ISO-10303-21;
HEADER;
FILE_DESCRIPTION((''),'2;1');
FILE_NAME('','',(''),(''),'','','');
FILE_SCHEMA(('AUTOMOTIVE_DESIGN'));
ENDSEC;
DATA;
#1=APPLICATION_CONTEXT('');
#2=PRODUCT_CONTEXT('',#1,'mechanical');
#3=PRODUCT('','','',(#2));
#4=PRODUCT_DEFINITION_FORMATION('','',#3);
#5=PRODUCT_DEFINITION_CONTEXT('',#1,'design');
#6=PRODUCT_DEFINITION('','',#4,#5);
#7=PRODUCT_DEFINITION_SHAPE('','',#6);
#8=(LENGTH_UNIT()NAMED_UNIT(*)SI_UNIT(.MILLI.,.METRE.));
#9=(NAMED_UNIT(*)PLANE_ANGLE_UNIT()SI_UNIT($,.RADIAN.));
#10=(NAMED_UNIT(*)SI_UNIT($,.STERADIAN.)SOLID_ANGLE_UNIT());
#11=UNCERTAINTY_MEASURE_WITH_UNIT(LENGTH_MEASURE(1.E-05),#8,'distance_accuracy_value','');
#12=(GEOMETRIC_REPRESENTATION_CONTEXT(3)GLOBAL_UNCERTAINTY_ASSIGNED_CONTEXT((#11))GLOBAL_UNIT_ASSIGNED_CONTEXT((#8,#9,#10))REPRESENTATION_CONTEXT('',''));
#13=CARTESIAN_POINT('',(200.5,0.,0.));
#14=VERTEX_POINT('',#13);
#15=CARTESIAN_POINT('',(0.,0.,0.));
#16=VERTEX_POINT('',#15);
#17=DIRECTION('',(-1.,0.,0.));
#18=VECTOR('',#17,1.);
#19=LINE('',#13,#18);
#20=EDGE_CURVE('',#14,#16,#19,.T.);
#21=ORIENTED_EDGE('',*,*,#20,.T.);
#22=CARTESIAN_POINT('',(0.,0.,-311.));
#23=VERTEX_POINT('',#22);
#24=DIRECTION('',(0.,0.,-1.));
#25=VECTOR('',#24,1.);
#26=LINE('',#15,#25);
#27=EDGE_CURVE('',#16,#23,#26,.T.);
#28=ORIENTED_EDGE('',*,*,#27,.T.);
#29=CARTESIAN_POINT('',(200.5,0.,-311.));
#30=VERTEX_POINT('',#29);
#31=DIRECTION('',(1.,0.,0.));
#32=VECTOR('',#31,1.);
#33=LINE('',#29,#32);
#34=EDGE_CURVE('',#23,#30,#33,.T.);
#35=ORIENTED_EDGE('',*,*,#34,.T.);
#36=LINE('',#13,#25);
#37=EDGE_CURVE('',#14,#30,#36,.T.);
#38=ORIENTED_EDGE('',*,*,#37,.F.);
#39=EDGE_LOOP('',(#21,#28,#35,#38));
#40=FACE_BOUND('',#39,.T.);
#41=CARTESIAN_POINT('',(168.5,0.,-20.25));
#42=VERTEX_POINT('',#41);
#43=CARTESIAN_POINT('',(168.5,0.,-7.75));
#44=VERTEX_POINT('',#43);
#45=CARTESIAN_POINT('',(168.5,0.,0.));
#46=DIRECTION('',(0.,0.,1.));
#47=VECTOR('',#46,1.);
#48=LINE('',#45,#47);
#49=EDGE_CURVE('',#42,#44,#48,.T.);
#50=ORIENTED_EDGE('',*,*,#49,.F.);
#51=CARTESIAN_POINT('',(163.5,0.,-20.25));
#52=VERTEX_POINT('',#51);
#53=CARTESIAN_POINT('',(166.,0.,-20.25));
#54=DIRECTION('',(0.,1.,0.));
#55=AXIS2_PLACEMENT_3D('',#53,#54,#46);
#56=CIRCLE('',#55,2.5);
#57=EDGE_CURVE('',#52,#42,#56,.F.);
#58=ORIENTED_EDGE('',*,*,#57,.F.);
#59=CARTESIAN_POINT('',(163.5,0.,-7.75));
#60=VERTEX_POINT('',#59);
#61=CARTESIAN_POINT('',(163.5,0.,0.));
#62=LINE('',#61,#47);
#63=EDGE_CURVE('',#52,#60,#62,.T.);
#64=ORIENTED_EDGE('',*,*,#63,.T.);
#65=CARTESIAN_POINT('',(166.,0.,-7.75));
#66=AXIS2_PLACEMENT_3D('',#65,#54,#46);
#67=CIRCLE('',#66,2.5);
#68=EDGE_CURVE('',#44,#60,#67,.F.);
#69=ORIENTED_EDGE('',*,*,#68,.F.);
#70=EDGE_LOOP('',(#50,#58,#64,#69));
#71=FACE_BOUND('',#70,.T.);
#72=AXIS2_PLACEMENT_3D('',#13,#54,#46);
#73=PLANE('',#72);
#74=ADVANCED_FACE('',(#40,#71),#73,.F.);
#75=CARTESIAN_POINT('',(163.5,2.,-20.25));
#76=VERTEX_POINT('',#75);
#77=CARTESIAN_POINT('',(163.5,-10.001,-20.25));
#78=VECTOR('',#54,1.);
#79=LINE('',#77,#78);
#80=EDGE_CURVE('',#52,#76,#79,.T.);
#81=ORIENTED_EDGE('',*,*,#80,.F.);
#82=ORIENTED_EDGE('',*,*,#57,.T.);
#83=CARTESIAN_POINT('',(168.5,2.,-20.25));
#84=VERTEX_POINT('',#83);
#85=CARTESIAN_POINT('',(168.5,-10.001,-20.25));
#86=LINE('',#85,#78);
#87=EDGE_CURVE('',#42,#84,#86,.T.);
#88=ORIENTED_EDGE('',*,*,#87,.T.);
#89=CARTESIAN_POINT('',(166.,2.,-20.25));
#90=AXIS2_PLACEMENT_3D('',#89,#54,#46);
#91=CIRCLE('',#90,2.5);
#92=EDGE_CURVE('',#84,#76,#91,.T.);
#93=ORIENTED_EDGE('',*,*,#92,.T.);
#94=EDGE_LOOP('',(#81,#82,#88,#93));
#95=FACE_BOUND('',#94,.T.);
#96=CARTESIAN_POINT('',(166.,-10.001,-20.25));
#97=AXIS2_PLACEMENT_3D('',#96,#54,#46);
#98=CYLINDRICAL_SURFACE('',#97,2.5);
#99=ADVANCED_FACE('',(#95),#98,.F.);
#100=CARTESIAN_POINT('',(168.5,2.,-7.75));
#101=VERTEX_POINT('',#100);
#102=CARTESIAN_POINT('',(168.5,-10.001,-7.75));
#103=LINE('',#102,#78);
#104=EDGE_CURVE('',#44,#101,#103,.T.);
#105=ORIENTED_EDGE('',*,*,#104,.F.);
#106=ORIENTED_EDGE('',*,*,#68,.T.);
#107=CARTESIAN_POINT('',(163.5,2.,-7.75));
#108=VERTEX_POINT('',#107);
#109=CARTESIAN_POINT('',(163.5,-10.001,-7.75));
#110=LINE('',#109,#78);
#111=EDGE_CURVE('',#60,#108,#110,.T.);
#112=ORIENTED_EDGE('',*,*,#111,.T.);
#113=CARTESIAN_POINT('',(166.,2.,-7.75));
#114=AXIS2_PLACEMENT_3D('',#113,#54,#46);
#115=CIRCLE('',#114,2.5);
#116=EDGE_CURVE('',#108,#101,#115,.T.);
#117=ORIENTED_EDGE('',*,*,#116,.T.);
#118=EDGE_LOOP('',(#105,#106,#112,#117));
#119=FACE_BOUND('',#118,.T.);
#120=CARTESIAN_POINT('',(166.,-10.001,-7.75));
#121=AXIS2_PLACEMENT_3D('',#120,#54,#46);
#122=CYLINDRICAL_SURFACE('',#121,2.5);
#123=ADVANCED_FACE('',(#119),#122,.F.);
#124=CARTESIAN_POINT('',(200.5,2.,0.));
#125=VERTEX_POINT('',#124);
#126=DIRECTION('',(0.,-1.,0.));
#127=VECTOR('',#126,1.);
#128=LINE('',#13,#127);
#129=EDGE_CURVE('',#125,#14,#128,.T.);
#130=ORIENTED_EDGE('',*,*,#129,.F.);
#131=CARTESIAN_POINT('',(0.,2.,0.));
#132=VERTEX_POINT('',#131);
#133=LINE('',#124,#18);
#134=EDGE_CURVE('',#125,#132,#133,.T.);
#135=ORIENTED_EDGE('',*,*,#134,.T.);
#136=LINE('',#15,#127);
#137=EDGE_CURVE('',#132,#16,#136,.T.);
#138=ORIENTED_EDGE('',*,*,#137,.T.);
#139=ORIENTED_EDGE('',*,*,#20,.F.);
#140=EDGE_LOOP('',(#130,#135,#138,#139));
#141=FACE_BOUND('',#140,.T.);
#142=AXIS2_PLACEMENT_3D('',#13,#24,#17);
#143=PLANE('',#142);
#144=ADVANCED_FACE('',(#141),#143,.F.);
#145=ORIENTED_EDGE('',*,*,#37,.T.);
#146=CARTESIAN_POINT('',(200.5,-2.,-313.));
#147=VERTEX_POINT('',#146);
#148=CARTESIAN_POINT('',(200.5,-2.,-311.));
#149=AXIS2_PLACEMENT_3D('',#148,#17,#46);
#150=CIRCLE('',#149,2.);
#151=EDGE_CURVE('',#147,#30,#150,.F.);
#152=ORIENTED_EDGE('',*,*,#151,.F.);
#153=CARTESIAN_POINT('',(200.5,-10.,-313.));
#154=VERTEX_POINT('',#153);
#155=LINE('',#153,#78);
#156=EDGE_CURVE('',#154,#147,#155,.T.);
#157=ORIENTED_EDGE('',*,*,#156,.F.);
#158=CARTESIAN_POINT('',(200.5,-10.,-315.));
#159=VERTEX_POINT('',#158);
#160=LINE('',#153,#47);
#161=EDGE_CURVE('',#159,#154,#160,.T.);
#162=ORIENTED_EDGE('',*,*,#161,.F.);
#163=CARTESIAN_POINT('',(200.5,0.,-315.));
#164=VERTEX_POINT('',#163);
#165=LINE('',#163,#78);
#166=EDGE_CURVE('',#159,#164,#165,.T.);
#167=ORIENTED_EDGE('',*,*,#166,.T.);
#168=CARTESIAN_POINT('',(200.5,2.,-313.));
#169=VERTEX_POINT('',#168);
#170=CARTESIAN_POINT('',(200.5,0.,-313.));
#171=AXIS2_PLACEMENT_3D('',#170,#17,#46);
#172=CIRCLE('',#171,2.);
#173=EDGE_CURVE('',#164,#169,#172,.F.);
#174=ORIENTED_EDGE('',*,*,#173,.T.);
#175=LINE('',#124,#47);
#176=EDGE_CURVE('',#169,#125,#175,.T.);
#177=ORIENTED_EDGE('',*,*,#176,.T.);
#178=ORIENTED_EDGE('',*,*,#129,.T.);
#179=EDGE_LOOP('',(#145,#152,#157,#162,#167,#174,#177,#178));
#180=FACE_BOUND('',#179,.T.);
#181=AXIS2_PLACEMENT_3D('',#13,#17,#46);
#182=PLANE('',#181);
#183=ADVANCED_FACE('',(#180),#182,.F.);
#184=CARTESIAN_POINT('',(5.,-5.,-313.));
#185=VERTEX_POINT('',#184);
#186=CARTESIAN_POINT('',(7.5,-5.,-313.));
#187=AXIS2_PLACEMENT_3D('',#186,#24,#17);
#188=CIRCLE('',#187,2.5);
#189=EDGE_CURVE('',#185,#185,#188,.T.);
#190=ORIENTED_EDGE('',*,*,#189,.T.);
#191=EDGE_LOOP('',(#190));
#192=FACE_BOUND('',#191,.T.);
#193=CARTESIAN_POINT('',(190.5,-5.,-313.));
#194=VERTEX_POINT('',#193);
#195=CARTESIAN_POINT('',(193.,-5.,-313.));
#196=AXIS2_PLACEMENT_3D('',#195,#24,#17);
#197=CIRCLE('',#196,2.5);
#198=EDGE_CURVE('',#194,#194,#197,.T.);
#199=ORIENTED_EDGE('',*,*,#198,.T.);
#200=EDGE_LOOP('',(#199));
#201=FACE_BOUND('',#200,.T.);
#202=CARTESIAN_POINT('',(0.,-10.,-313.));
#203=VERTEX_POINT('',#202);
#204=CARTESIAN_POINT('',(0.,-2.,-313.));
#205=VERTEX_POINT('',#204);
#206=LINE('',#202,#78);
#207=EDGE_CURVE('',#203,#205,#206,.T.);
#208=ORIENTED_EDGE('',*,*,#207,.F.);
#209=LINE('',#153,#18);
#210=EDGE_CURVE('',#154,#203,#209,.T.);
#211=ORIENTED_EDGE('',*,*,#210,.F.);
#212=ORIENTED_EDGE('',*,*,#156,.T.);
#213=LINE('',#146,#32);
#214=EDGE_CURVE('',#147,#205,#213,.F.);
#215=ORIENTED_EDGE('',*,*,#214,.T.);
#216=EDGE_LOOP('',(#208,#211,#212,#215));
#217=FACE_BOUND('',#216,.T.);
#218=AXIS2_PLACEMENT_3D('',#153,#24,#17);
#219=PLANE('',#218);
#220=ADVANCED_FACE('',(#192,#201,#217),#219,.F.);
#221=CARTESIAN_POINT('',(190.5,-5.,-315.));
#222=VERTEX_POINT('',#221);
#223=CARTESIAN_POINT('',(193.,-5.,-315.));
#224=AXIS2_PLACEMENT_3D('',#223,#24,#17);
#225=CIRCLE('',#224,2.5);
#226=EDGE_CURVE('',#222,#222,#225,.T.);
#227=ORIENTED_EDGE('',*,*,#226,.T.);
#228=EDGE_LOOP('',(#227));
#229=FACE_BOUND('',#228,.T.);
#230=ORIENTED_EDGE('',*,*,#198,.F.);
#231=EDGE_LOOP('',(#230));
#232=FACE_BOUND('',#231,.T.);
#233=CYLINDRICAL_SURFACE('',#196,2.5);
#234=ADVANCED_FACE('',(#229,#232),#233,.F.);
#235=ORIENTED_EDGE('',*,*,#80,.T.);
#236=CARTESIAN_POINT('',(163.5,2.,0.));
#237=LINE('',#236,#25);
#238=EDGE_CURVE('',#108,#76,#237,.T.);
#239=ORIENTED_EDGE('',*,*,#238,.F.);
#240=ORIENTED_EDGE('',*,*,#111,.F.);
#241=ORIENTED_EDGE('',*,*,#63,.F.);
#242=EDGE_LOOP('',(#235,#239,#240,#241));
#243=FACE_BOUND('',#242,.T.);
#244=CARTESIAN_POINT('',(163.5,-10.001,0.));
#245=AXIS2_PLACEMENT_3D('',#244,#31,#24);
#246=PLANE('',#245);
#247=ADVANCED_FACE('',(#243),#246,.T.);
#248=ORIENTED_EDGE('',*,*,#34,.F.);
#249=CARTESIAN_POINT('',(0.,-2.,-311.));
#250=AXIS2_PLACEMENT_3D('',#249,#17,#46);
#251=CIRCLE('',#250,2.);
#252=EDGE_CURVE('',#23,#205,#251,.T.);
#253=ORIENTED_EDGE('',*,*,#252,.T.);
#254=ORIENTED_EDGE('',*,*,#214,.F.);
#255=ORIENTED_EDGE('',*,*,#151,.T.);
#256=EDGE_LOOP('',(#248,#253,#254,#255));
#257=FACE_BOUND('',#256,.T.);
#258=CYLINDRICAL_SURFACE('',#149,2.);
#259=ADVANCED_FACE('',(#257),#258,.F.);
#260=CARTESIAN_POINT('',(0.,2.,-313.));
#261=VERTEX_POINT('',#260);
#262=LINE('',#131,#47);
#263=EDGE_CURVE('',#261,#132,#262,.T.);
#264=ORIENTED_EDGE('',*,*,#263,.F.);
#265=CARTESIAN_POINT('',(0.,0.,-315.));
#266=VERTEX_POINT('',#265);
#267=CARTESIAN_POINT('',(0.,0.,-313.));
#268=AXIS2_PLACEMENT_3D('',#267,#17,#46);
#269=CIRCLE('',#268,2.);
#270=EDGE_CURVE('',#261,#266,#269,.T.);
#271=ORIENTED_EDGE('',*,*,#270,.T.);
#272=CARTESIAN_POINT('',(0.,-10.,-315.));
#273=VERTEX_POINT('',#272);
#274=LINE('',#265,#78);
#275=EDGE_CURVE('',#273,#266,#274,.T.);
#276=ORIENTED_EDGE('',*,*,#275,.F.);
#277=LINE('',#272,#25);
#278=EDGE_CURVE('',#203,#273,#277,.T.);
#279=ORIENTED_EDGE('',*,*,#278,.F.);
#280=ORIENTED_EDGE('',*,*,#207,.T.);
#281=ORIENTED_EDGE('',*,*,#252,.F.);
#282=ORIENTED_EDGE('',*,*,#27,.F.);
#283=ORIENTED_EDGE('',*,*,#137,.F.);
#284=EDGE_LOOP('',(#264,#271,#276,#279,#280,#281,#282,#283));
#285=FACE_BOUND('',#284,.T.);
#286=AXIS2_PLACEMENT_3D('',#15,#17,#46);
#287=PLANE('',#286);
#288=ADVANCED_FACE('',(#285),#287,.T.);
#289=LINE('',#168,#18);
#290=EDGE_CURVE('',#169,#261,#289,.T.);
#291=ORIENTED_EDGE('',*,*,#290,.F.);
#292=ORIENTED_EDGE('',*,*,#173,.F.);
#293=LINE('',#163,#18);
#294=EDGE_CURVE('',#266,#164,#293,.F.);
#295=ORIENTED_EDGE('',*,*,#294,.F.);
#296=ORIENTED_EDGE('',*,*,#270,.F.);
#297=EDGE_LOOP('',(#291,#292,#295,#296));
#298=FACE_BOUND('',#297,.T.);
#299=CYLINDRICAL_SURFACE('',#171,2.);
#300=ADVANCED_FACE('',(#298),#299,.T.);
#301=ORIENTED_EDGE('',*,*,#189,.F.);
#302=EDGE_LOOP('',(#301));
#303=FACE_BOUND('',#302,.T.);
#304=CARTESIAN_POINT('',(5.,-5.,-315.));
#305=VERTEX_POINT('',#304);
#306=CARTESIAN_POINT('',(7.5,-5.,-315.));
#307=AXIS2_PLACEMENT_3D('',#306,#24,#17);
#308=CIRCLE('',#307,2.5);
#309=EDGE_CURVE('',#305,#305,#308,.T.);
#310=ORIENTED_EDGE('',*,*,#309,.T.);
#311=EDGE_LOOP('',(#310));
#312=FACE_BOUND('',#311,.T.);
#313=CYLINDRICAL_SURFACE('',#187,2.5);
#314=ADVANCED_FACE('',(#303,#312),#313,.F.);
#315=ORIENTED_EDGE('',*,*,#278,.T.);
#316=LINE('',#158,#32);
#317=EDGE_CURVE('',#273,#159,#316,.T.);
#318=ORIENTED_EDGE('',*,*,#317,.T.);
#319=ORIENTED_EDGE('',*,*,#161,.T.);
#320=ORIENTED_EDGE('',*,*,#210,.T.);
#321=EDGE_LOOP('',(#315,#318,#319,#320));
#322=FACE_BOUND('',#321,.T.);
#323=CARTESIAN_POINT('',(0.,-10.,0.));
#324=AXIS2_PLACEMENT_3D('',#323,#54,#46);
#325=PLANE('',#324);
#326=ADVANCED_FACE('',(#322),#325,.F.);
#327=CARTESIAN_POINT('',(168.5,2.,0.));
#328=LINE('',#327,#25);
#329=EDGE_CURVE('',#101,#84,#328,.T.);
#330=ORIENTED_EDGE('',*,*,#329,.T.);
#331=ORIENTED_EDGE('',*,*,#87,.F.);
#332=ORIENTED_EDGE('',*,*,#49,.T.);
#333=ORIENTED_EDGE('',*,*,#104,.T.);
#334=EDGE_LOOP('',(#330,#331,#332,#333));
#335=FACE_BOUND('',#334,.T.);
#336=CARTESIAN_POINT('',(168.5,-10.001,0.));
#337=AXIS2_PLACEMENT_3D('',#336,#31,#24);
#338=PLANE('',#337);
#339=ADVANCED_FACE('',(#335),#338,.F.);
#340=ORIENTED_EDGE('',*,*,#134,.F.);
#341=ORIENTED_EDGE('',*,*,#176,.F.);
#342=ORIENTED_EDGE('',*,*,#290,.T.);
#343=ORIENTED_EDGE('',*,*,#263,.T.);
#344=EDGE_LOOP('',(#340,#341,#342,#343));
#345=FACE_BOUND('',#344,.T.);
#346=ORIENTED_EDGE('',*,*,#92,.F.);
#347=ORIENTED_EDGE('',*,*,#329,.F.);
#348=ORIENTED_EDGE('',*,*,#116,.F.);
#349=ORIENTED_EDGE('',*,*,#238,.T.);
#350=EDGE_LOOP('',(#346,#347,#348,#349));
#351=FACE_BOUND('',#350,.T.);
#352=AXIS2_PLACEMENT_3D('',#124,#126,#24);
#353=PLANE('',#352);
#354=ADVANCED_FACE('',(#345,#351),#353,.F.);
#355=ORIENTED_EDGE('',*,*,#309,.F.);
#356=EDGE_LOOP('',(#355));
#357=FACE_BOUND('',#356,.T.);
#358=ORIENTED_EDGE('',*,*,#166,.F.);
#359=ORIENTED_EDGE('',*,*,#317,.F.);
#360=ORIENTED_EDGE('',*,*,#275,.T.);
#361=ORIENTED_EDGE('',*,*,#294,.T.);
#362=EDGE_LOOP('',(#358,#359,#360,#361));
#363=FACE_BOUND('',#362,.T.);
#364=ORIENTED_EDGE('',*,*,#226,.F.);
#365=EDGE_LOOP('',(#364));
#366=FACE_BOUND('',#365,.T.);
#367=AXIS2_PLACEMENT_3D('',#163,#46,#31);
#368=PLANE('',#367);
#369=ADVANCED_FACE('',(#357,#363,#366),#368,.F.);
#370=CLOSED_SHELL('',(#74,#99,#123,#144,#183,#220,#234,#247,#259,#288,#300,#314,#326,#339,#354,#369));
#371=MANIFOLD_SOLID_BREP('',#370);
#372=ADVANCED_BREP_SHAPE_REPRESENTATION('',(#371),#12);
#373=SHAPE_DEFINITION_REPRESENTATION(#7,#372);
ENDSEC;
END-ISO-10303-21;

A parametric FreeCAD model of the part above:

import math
import FreeCAD as App
import Part
import Sketcher
from FreeCAD import Vector
Q = App.Units.Quantity


def edges_at(feature, points):
    """Names of the edges that pass closest to the given points."""
    edges = feature.Shape.Edges
    near = lambda p: min(range(len(edges)), key=lambda i: edges[i].distToShape(Part.Vertex(*p))[0])
    return sorted({f"Edge{near(p) + 1}" for p in points})


def add_polygon(sketch, points):
    """Adds a closed chain of lines whose ends are joined by coincident constraints."""
    first, n = sketch.GeometryCount, len(points)
    for a, b in zip(points, points[1:] + points[:1]):
        sketch.addGeometry(Part.LineSegment(App.Vector(*a, 0), App.Vector(*b, 0)), False)
    for i in range(n):
        sketch.addConstraint(Sketcher.Constraint("Coincident", first + i, 2, first + (i + 1) % n, 1))

doc = App.newDocument("Part")
body = doc.addObject("PartDesign::Body", "Body")

# Sketch on YZ plane
sketch1 = body.newObject("Sketcher::SketchObject", "Sketch")
sketch1.AttachmentSupport = (doc.getObject("YZ_Plane"), [""])
sketch1.MapMode = "FlatFace"
add_polygon(sketch1, [(2, 0), (0, 0), (0, -315), (2, -315)])  # lines 0-3
sketch1.addConstraint(Sketcher.Constraint("Horizontal", 0))
sketch1.addConstraint(Sketcher.Constraint("Vertical", 1))
sketch1.addConstraint(Sketcher.Constraint("Horizontal", 2))
sketch1.addConstraint(Sketcher.Constraint("Vertical", 3))
sketch1.addConstraint(Sketcher.Constraint("Coincident", 0, 2, -1, 1))
sketch1.addConstraint(Sketcher.Constraint("DistanceX", 0, 2, 0, 1, Q("2 mm")))
sketch1.addConstraint(Sketcher.Constraint("DistanceY", 1, 2, 1, 1, Q("315 mm")))
pad1 = body.newObject("PartDesign::Pad", "Pad")
pad1.Profile = sketch1
pad1.Length = 200.5

# Sketch on XZ plane
sketch2 = body.newObject("Sketcher::SketchObject", "Sketch001")
sketch2.AttachmentSupport = (doc.getObject("XZ_Plane"), [""])
sketch2.MapMode = "FlatFace"
add_polygon(sketch2, [(0, -313), (0, -315), (200.5, -315), (200.5, -313)])  # lines 0-3
sketch2.addConstraint(Sketcher.Constraint("Vertical", 0))
sketch2.addConstraint(Sketcher.Constraint("Horizontal", 1))
sketch2.addConstraint(Sketcher.Constraint("Vertical", 2))
sketch2.addConstraint(Sketcher.Constraint("Horizontal", 3))
sketch2.addConstraint(Sketcher.Constraint("PointOnObject", 0, 2, -2))
sketch2.addConstraint(Sketcher.Constraint("DistanceY", 0, 2, 0, 1, Q("2 mm")))
sketch2.addConstraint(Sketcher.Constraint("DistanceX", 1, 1, 1, 2, Q("200.5 mm")))
sketch2.addConstraint(Sketcher.Constraint("DistanceY", 0, 2, -1, 1, Q("315 mm")))
pad2 = body.newObject("PartDesign::Pad", "Pad001")
pad2.Profile = sketch2
pad2.Length = 10
doc.recompute()

fillet = body.newObject("PartDesign::Fillet", "Fillet")
fillet.Base = (pad2, edges_at(pad2, [(100.25, 2, -315)]))
fillet.Radius = 2
doc.recompute()

fillet2 = body.newObject("PartDesign::Fillet", "Fillet001")
fillet2.Base = (fillet, edges_at(fillet, [(100.25, 0, -313)]))
fillet2.Radius = 2

# Sketch on XY plane
sketch3 = body.newObject("Sketcher::SketchObject", "Sketch002")
sketch3.AttachmentSupport = (doc.getObject("XY_Plane"), [""])
sketch3.MapMode = "FlatFace"
sketch3.AttachmentOffset = App.Placement(Vector(0, 0, -315), App.Rotation())
sketch3.addGeometry(Part.Circle(Vector(193, -5, 0), Vector(0, 0, 1), 2.5), False)
sketch3.addGeometry(Part.Circle(Vector(7.5, -5, 0), Vector(0, 0, 1), 2.5), False)
sketch3.addConstraint(Sketcher.Constraint("Equal", 0, 1))
sketch3.addConstraint(Sketcher.Constraint("Horizontal", 0, 3, 1, 3))
sketch3.addConstraint(Sketcher.Constraint("Diameter", 0, Q("5 mm")))
sketch3.addConstraint(Sketcher.Constraint("DistanceX", -1, 1, 0, 3, Q("193 mm")))
sketch3.addConstraint(Sketcher.Constraint("DistanceY", 0, 3, -1, 1, Q("5 mm")))
sketch3.addConstraint(Sketcher.Constraint("DistanceX", -1, 1, 1, 3, Q("7.5 mm")))
pocket1 = body.newObject("PartDesign::Pocket", "Pocket")
pocket1.Profile = sketch3
pocket1.Length = 2
pocket1.Reversed = True

# Sketch on XZ plane
sketch4 = body.newObject("Sketcher::SketchObject", "Sketch003")
sketch4.AttachmentSupport = (doc.getObject("XZ_Plane"), [""])
sketch4.MapMode = "FlatFace"
sketch4.AttachmentOffset = App.Placement(Vector(0, 0, -2), App.Rotation())
sketch4.addGeometry(Part.LineSegment(Vector(163.5, -20.2, 0), Vector(163.5, -7.8, 0)), False)
sketch4.addGeometry(Part.ArcOfCircle(Part.Circle(Vector(166, -7.8, 0), Vector(0, 0, 1), 2.5), math.radians(0), math.radians(180)), False)
sketch4.addGeometry(Part.LineSegment(Vector(168.5, -7.8, 0), Vector(168.5, -20.2, 0)), False)
sketch4.addGeometry(Part.ArcOfCircle(Part.Circle(Vector(166, -20.2, 0), Vector(0, 0, 1), 2.5), math.radians(180), math.radians(360)), False)
sketch4.addConstraint(Sketcher.Constraint("Tangent", 0, 2, 1, 2))
sketch4.addConstraint(Sketcher.Constraint("Tangent", 1, 1, 2, 1))
sketch4.addConstraint(Sketcher.Constraint("Tangent", 2, 2, 3, 2))
sketch4.addConstraint(Sketcher.Constraint("Tangent", 3, 1, 0, 1))
sketch4.addConstraint(Sketcher.Constraint("Vertical", 0))
sketch4.addConstraint(Sketcher.Constraint("Vertical", 2))
sketch4.addConstraint(Sketcher.Constraint("Radius", 1, Q("2.5 mm")))
sketch4.addConstraint(Sketcher.Constraint("DistanceY", 0, 1, 0, 2, Q("12.5 mm")))
sketch4.addConstraint(Sketcher.Constraint("DistanceX", -1, 1, 1, 3, Q("166 mm")))
sketch4.addConstraint(Sketcher.Constraint("DistanceY", 1, 3, -1, 1, Q("7.75 mm")))
pocket2 = body.newObject("PartDesign::Pocket", "Pocket001")
pocket2.Profile = sketch4
pocket2.Length = 2
pocket2.Reversed = True

doc.recompute()
